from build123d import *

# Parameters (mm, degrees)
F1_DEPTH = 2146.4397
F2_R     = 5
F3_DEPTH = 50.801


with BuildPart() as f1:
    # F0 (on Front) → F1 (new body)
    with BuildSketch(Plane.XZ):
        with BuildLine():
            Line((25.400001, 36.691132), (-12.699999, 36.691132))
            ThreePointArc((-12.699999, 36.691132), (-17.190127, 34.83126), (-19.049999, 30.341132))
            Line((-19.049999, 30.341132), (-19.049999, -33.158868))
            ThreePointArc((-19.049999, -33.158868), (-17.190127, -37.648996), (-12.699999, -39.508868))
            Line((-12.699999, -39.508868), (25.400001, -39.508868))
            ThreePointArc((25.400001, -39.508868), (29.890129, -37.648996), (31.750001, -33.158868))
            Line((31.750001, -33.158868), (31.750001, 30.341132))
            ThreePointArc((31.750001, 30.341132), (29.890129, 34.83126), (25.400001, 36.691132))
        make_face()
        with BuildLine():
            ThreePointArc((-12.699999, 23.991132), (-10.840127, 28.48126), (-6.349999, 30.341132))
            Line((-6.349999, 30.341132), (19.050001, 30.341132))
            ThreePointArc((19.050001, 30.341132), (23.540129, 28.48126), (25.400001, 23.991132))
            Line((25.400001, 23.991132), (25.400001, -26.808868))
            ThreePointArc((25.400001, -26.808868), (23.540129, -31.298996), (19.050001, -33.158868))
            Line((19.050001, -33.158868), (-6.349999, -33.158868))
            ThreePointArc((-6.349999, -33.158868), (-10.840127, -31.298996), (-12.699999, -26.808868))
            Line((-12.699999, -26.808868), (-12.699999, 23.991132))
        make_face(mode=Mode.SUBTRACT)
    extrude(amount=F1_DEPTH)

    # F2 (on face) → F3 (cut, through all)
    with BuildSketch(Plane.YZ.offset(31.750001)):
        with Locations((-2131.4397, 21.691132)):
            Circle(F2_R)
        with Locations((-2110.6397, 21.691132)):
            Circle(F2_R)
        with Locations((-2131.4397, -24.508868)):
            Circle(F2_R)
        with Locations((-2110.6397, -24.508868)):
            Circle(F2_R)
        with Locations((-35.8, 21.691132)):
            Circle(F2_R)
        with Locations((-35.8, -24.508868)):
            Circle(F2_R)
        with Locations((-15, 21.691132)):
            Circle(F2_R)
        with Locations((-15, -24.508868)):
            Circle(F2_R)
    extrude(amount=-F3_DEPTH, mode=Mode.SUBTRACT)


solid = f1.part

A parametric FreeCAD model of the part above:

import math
import FreeCAD as App
import Part
import Sketcher
from FreeCAD import Vector
Q = App.Units.Quantity

doc = App.newDocument("Part")
body = doc.addObject("PartDesign::Body", "Body")

sketch1 = body.newObject("Sketcher::SketchObject", "Sketch")
sketch1.AttachmentSupport = (doc.getObject("XZ_Plane"), [""])
sketch1.MapMode = "FlatFace"
sketch1.addGeometry(Part.LineSegment(Vector(25, 37, 0), Vector(-13, 37, 0)), False)
sketch1.addGeometry(Part.ArcOfCircle(Part.Circle(Vector(-13, 30, 0), Vector(0, 0, 1), 6), math.radians(90), math.radians(180)), False)
sketch1.addGeometry(Part.LineSegment(Vector(-19, 30, 0), Vector(-19, -33, 0)), False)
sketch1.addGeometry(Part.ArcOfCircle(Part.Circle(Vector(-13, -33, 0), Vector(0, 0, 1), 6), math.radians(-180), math.radians(-90)), False)
sketch1.addGeometry(Part.LineSegment(Vector(-13, -40, 0), Vector(25, -40, 0)), False)
sketch1.addGeometry(Part.ArcOfCircle(Part.Circle(Vector(25, -33, 0), Vector(0, 0, 1), 6), math.radians(-90), math.radians(0)), False)
sketch1.addGeometry(Part.LineSegment(Vector(32, -33, 0), Vector(32, 30, 0)), False)
sketch1.addGeometry(Part.ArcOfCircle(Part.Circle(Vector(25, 30, 0), Vector(0, 0, 1), 6), math.radians(0), math.radians(90)), False)
sketch1.addGeometry(Part.LineSegment(Vector(-13, -27, 0), Vector(-13, 24, 0)), False)
sketch1.addGeometry(Part.ArcOfCircle(Part.Circle(Vector(-6, 24, 0), Vector(0, 0, 1), 6), math.radians(90), math.radians(180)), False)
sketch1.addGeometry(Part.LineSegment(Vector(-6, 30, 0), Vector(19, 30, 0)), False)
sketch1.addGeometry(Part.ArcOfCircle(Part.Circle(Vector(19, 24, 0), Vector(0, 0, 1), 6), math.radians(0), math.radians(90)), False)
sketch1.addGeometry(Part.LineSegment(Vector(25, 24, 0), Vector(25, -27, 0)), False)
sketch1.addGeometry(Part.ArcOfCircle(Part.Circle(Vector(19, -27, 0), Vector(0, 0, 1), 6), math.radians(-90), math.radians(0)), False)
sketch1.addGeometry(Part.LineSegment(Vector(19, -33, 0), Vector(-6, -33, 0)), False)
sketch1.addGeometry(Part.ArcOfCircle(Part.Circle(Vector(-6, -27, 0), Vector(0, 0, 1), 6), math.radians(-180), math.radians(-90)), False)
sketch1.addConstraint(Sketcher.Constraint("Tangent", 0, 2, 1, 1))
sketch1.addConstraint(Sketcher.Constraint("Tangent", 1, 2, 2, 1))
sketch1.addConstraint(Sketcher.Constraint("Tangent", 2, 2, 3, 1))
sketch1.addConstraint(Sketcher.Constraint("Tangent", 3, 2, 4, 1))
sketch1.addConstraint(Sketcher.Constraint("Tangent", 4, 2, 5, 1))
sketch1.addConstraint(Sketcher.Constraint("Tangent", 5, 2, 6, 1))
sketch1.addConstraint(Sketcher.Constraint("Tangent", 6, 2, 7, 1))
sketch1.addConstraint(Sketcher.Constraint("Tangent", 7, 2, 0, 1))
sketch1.addConstraint(Sketcher.Constraint("Tangent", 8, 2, 9, 2))
sketch1.addConstraint(Sketcher.Constraint("Tangent", 9, 1, 10, 1))
sketch1.addConstraint(Sketcher.Constraint("Tangent", 10, 2, 11, 2))
sketch1.addConstraint(Sketcher.Constraint("Tangent", 11, 1, 12, 1))
sketch1.addConstraint(Sketcher.Constraint("Tangent", 12, 2, 13, 2))
sketch1.addConstraint(Sketcher.Constraint("Tangent", 13, 1, 14, 1))
sketch1.addConstraint(Sketcher.Constraint("Tangent", 14, 2, 15, 2))
sketch1.addConstraint(Sketcher.Constraint("Tangent", 15, 1, 8, 1))
sketch1.addConstraint(Sketcher.Constraint("Horizontal", 0))
sketch1.addConstraint(Sketcher.Constraint("Vertical", 2))
sketch1.addConstraint(Sketcher.Constraint("Horizontal", 4))
sketch1.addConstraint(Sketcher.Constraint("Vertical", 6))
sketch1.addConstraint(Sketcher.Constraint("Vertical", 8))
sketch1.addConstraint(Sketcher.Constraint("Horizontal", 10))
sketch1.addConstraint(Sketcher.Constraint("Vertical", 12))
sketch1.addConstraint(Sketcher.Constraint("Horizontal", 14))
sketch1.addConstraint(Sketcher.Constraint("Equal", 1, 3))
sketch1.addConstraint(Sketcher.Constraint("Equal", 3, 5))
sketch1.addConstraint(Sketcher.Constraint("Equal", 5, 7))
sketch1.addConstraint(Sketcher.Constraint("Equal", 7, 9))
sketch1.addConstraint(Sketcher.Constraint("Equal", 9, 11))
sketch1.addConstraint(Sketcher.Constraint("Equal", 11, 13))
sketch1.addConstraint(Sketcher.Constraint("Equal", 13, 15))
sketch1.addConstraint(Sketcher.Constraint("Symmetric", 1, 2, 10, 2, -2))
sketch1.addConstraint(Sketcher.Constraint("Horizontal", 5, 2, 13, 1))
sketch1.addConstraint(Sketcher.Constraint("Vertical", 3, 2, 8, 2))
sketch1.addConstraint(Sketcher.Constraint("Vertical", 7, 2, 11, 1))
sketch1.addConstraint(Sketcher.Constraint("DistanceX", 10, 1, 10, 2, Q("1 in")))
sketch1.addConstraint(Sketcher.Constraint("DistanceY", 8, 1, 8, 2, Q("2 in")))
sketch1.addConstraint(Sketcher.Constraint("Radius", 1, Q("0.25 in")))
sketch1.addConstraint(Sketcher.Constraint("DistanceY", -1, 1, 1, 3, 30.341132))
pad1 = body.newObject("PartDesign::Pad", "Pad")
pad1.Profile = sketch1
pad1.Length = Q("84.5055 in")

sketch2 = body.newObject("Sketcher::SketchObject", "Sketch001")
sketch2.AttachmentSupport = (doc.getObject("YZ_Plane"), [""])
sketch2.MapMode = "FlatFace"
sketch2.AttachmentOffset = App.Placement(Vector(0, 0, 1.25 * 25.4), App.Rotation())
sketch2.addGeometry(Part.Circle(Vector(-2131, 22, 0), Vector(0, 0, 1), 5), False)
sketch2.addGeometry(Part.Circle(Vector(-2111, 22, 0), Vector(0, 0, 1), 5), False)
sketch2.addGeometry(Part.Circle(Vector(-2131, -25, 0), Vector(0, 0, 1), 5), False)
sketch2.addGeometry(Part.Circle(Vector(-2111, -25, 0), Vector(0, 0, 1), 5), False)
sketch2.addGeometry(Part.Circle(Vector(-36, 22, 0), Vector(0, 0, 1), 5), False)
sketch2.addGeometry(Part.Circle(Vector(-36, -25, 0), Vector(0, 0, 1), 5), False)
sketch2.addGeometry(Part.Circle(Vector(-15, 22, 0), Vector(0, 0, 1), 5), False)
sketch2.addGeometry(Part.Circle(Vector(-15, -25, 0), Vector(0, 0, 1), 5), False)
sketch2.addConstraint(Sketcher.Constraint("Equal", 0, 1))
sketch2.addConstraint(Sketcher.Constraint("Equal", 1, 2))
sketch2.addConstraint(Sketcher.Constraint("Equal", 2, 3))
sketch2.addConstraint(Sketcher.Constraint("Equal", 3, 4))
sketch2.addConstraint(Sketcher.Constraint("Equal", 4, 5))
sketch2.addConstraint(Sketcher.Constraint("Equal", 5, 6))
sketch2.addConstraint(Sketcher.Constraint("Equal", 6, 7))
sketch2.addConstraint(Sketcher.Constraint("Horizontal", 0, 3, 1, 3))
sketch2.addConstraint(Sketcher.Constraint("Horizontal", 2, 3, 3, 3))
sketch2.addConstraint(Sketcher.Constraint("Horizontal", 1, 3, 4, 3))
sketch2.addConstraint(Sketcher.Constraint("Horizontal", 3, 3, 5, 3))
sketch2.addConstraint(Sketcher.Constraint("Horizontal", 4, 3, 6, 3))
sketch2.addConstraint(Sketcher.Constraint("Horizontal", 5, 3, 7, 3))
sketch2.addConstraint(Sketcher.Constraint("Vertical", 0, 3, 2, 3))
sketch2.addConstraint(Sketcher.Constraint("Vertical", 1, 3, 3, 3))
sketch2.addConstraint(Sketcher.Constraint("Vertical", 4, 3, 5, 3))
sketch2.addConstraint(Sketcher.Constraint("Vertical", 6, 3, 7, 3))
sketch2.addConstraint(Sketcher.Constraint("Diameter", 0, 10.0))
sketch2.addConstraint(Sketcher.Constraint("DistanceX", 0, 3, 4, 3, Q("82.5055 in")))
sketch2.addConstraint(Sketcher.Constraint("DistanceX", 1, 3, 6, 3, Q("82.5055 in")))
sketch2.addConstraint(Sketcher.Constraint("DistanceX", 0, 3, -1, 1, 2131.4397))
sketch2.addConstraint(Sketcher.Constraint("DistanceX", 1, 3, -1, 1, 2110.6397))
sketch2.addConstraint(Sketcher.Constraint("DistanceY", 2, 3, 0, 3, 46.2))
sketch2.addConstraint(Sketcher.Constraint("DistanceY", -1, 1, 0, 3, 21.691132))
pocket1 = body.newObject("PartDesign::Pocket", "Pocket")
pocket1.Profile = sketch2
pocket1.Type = "ThroughAll"

doc.recompute()
